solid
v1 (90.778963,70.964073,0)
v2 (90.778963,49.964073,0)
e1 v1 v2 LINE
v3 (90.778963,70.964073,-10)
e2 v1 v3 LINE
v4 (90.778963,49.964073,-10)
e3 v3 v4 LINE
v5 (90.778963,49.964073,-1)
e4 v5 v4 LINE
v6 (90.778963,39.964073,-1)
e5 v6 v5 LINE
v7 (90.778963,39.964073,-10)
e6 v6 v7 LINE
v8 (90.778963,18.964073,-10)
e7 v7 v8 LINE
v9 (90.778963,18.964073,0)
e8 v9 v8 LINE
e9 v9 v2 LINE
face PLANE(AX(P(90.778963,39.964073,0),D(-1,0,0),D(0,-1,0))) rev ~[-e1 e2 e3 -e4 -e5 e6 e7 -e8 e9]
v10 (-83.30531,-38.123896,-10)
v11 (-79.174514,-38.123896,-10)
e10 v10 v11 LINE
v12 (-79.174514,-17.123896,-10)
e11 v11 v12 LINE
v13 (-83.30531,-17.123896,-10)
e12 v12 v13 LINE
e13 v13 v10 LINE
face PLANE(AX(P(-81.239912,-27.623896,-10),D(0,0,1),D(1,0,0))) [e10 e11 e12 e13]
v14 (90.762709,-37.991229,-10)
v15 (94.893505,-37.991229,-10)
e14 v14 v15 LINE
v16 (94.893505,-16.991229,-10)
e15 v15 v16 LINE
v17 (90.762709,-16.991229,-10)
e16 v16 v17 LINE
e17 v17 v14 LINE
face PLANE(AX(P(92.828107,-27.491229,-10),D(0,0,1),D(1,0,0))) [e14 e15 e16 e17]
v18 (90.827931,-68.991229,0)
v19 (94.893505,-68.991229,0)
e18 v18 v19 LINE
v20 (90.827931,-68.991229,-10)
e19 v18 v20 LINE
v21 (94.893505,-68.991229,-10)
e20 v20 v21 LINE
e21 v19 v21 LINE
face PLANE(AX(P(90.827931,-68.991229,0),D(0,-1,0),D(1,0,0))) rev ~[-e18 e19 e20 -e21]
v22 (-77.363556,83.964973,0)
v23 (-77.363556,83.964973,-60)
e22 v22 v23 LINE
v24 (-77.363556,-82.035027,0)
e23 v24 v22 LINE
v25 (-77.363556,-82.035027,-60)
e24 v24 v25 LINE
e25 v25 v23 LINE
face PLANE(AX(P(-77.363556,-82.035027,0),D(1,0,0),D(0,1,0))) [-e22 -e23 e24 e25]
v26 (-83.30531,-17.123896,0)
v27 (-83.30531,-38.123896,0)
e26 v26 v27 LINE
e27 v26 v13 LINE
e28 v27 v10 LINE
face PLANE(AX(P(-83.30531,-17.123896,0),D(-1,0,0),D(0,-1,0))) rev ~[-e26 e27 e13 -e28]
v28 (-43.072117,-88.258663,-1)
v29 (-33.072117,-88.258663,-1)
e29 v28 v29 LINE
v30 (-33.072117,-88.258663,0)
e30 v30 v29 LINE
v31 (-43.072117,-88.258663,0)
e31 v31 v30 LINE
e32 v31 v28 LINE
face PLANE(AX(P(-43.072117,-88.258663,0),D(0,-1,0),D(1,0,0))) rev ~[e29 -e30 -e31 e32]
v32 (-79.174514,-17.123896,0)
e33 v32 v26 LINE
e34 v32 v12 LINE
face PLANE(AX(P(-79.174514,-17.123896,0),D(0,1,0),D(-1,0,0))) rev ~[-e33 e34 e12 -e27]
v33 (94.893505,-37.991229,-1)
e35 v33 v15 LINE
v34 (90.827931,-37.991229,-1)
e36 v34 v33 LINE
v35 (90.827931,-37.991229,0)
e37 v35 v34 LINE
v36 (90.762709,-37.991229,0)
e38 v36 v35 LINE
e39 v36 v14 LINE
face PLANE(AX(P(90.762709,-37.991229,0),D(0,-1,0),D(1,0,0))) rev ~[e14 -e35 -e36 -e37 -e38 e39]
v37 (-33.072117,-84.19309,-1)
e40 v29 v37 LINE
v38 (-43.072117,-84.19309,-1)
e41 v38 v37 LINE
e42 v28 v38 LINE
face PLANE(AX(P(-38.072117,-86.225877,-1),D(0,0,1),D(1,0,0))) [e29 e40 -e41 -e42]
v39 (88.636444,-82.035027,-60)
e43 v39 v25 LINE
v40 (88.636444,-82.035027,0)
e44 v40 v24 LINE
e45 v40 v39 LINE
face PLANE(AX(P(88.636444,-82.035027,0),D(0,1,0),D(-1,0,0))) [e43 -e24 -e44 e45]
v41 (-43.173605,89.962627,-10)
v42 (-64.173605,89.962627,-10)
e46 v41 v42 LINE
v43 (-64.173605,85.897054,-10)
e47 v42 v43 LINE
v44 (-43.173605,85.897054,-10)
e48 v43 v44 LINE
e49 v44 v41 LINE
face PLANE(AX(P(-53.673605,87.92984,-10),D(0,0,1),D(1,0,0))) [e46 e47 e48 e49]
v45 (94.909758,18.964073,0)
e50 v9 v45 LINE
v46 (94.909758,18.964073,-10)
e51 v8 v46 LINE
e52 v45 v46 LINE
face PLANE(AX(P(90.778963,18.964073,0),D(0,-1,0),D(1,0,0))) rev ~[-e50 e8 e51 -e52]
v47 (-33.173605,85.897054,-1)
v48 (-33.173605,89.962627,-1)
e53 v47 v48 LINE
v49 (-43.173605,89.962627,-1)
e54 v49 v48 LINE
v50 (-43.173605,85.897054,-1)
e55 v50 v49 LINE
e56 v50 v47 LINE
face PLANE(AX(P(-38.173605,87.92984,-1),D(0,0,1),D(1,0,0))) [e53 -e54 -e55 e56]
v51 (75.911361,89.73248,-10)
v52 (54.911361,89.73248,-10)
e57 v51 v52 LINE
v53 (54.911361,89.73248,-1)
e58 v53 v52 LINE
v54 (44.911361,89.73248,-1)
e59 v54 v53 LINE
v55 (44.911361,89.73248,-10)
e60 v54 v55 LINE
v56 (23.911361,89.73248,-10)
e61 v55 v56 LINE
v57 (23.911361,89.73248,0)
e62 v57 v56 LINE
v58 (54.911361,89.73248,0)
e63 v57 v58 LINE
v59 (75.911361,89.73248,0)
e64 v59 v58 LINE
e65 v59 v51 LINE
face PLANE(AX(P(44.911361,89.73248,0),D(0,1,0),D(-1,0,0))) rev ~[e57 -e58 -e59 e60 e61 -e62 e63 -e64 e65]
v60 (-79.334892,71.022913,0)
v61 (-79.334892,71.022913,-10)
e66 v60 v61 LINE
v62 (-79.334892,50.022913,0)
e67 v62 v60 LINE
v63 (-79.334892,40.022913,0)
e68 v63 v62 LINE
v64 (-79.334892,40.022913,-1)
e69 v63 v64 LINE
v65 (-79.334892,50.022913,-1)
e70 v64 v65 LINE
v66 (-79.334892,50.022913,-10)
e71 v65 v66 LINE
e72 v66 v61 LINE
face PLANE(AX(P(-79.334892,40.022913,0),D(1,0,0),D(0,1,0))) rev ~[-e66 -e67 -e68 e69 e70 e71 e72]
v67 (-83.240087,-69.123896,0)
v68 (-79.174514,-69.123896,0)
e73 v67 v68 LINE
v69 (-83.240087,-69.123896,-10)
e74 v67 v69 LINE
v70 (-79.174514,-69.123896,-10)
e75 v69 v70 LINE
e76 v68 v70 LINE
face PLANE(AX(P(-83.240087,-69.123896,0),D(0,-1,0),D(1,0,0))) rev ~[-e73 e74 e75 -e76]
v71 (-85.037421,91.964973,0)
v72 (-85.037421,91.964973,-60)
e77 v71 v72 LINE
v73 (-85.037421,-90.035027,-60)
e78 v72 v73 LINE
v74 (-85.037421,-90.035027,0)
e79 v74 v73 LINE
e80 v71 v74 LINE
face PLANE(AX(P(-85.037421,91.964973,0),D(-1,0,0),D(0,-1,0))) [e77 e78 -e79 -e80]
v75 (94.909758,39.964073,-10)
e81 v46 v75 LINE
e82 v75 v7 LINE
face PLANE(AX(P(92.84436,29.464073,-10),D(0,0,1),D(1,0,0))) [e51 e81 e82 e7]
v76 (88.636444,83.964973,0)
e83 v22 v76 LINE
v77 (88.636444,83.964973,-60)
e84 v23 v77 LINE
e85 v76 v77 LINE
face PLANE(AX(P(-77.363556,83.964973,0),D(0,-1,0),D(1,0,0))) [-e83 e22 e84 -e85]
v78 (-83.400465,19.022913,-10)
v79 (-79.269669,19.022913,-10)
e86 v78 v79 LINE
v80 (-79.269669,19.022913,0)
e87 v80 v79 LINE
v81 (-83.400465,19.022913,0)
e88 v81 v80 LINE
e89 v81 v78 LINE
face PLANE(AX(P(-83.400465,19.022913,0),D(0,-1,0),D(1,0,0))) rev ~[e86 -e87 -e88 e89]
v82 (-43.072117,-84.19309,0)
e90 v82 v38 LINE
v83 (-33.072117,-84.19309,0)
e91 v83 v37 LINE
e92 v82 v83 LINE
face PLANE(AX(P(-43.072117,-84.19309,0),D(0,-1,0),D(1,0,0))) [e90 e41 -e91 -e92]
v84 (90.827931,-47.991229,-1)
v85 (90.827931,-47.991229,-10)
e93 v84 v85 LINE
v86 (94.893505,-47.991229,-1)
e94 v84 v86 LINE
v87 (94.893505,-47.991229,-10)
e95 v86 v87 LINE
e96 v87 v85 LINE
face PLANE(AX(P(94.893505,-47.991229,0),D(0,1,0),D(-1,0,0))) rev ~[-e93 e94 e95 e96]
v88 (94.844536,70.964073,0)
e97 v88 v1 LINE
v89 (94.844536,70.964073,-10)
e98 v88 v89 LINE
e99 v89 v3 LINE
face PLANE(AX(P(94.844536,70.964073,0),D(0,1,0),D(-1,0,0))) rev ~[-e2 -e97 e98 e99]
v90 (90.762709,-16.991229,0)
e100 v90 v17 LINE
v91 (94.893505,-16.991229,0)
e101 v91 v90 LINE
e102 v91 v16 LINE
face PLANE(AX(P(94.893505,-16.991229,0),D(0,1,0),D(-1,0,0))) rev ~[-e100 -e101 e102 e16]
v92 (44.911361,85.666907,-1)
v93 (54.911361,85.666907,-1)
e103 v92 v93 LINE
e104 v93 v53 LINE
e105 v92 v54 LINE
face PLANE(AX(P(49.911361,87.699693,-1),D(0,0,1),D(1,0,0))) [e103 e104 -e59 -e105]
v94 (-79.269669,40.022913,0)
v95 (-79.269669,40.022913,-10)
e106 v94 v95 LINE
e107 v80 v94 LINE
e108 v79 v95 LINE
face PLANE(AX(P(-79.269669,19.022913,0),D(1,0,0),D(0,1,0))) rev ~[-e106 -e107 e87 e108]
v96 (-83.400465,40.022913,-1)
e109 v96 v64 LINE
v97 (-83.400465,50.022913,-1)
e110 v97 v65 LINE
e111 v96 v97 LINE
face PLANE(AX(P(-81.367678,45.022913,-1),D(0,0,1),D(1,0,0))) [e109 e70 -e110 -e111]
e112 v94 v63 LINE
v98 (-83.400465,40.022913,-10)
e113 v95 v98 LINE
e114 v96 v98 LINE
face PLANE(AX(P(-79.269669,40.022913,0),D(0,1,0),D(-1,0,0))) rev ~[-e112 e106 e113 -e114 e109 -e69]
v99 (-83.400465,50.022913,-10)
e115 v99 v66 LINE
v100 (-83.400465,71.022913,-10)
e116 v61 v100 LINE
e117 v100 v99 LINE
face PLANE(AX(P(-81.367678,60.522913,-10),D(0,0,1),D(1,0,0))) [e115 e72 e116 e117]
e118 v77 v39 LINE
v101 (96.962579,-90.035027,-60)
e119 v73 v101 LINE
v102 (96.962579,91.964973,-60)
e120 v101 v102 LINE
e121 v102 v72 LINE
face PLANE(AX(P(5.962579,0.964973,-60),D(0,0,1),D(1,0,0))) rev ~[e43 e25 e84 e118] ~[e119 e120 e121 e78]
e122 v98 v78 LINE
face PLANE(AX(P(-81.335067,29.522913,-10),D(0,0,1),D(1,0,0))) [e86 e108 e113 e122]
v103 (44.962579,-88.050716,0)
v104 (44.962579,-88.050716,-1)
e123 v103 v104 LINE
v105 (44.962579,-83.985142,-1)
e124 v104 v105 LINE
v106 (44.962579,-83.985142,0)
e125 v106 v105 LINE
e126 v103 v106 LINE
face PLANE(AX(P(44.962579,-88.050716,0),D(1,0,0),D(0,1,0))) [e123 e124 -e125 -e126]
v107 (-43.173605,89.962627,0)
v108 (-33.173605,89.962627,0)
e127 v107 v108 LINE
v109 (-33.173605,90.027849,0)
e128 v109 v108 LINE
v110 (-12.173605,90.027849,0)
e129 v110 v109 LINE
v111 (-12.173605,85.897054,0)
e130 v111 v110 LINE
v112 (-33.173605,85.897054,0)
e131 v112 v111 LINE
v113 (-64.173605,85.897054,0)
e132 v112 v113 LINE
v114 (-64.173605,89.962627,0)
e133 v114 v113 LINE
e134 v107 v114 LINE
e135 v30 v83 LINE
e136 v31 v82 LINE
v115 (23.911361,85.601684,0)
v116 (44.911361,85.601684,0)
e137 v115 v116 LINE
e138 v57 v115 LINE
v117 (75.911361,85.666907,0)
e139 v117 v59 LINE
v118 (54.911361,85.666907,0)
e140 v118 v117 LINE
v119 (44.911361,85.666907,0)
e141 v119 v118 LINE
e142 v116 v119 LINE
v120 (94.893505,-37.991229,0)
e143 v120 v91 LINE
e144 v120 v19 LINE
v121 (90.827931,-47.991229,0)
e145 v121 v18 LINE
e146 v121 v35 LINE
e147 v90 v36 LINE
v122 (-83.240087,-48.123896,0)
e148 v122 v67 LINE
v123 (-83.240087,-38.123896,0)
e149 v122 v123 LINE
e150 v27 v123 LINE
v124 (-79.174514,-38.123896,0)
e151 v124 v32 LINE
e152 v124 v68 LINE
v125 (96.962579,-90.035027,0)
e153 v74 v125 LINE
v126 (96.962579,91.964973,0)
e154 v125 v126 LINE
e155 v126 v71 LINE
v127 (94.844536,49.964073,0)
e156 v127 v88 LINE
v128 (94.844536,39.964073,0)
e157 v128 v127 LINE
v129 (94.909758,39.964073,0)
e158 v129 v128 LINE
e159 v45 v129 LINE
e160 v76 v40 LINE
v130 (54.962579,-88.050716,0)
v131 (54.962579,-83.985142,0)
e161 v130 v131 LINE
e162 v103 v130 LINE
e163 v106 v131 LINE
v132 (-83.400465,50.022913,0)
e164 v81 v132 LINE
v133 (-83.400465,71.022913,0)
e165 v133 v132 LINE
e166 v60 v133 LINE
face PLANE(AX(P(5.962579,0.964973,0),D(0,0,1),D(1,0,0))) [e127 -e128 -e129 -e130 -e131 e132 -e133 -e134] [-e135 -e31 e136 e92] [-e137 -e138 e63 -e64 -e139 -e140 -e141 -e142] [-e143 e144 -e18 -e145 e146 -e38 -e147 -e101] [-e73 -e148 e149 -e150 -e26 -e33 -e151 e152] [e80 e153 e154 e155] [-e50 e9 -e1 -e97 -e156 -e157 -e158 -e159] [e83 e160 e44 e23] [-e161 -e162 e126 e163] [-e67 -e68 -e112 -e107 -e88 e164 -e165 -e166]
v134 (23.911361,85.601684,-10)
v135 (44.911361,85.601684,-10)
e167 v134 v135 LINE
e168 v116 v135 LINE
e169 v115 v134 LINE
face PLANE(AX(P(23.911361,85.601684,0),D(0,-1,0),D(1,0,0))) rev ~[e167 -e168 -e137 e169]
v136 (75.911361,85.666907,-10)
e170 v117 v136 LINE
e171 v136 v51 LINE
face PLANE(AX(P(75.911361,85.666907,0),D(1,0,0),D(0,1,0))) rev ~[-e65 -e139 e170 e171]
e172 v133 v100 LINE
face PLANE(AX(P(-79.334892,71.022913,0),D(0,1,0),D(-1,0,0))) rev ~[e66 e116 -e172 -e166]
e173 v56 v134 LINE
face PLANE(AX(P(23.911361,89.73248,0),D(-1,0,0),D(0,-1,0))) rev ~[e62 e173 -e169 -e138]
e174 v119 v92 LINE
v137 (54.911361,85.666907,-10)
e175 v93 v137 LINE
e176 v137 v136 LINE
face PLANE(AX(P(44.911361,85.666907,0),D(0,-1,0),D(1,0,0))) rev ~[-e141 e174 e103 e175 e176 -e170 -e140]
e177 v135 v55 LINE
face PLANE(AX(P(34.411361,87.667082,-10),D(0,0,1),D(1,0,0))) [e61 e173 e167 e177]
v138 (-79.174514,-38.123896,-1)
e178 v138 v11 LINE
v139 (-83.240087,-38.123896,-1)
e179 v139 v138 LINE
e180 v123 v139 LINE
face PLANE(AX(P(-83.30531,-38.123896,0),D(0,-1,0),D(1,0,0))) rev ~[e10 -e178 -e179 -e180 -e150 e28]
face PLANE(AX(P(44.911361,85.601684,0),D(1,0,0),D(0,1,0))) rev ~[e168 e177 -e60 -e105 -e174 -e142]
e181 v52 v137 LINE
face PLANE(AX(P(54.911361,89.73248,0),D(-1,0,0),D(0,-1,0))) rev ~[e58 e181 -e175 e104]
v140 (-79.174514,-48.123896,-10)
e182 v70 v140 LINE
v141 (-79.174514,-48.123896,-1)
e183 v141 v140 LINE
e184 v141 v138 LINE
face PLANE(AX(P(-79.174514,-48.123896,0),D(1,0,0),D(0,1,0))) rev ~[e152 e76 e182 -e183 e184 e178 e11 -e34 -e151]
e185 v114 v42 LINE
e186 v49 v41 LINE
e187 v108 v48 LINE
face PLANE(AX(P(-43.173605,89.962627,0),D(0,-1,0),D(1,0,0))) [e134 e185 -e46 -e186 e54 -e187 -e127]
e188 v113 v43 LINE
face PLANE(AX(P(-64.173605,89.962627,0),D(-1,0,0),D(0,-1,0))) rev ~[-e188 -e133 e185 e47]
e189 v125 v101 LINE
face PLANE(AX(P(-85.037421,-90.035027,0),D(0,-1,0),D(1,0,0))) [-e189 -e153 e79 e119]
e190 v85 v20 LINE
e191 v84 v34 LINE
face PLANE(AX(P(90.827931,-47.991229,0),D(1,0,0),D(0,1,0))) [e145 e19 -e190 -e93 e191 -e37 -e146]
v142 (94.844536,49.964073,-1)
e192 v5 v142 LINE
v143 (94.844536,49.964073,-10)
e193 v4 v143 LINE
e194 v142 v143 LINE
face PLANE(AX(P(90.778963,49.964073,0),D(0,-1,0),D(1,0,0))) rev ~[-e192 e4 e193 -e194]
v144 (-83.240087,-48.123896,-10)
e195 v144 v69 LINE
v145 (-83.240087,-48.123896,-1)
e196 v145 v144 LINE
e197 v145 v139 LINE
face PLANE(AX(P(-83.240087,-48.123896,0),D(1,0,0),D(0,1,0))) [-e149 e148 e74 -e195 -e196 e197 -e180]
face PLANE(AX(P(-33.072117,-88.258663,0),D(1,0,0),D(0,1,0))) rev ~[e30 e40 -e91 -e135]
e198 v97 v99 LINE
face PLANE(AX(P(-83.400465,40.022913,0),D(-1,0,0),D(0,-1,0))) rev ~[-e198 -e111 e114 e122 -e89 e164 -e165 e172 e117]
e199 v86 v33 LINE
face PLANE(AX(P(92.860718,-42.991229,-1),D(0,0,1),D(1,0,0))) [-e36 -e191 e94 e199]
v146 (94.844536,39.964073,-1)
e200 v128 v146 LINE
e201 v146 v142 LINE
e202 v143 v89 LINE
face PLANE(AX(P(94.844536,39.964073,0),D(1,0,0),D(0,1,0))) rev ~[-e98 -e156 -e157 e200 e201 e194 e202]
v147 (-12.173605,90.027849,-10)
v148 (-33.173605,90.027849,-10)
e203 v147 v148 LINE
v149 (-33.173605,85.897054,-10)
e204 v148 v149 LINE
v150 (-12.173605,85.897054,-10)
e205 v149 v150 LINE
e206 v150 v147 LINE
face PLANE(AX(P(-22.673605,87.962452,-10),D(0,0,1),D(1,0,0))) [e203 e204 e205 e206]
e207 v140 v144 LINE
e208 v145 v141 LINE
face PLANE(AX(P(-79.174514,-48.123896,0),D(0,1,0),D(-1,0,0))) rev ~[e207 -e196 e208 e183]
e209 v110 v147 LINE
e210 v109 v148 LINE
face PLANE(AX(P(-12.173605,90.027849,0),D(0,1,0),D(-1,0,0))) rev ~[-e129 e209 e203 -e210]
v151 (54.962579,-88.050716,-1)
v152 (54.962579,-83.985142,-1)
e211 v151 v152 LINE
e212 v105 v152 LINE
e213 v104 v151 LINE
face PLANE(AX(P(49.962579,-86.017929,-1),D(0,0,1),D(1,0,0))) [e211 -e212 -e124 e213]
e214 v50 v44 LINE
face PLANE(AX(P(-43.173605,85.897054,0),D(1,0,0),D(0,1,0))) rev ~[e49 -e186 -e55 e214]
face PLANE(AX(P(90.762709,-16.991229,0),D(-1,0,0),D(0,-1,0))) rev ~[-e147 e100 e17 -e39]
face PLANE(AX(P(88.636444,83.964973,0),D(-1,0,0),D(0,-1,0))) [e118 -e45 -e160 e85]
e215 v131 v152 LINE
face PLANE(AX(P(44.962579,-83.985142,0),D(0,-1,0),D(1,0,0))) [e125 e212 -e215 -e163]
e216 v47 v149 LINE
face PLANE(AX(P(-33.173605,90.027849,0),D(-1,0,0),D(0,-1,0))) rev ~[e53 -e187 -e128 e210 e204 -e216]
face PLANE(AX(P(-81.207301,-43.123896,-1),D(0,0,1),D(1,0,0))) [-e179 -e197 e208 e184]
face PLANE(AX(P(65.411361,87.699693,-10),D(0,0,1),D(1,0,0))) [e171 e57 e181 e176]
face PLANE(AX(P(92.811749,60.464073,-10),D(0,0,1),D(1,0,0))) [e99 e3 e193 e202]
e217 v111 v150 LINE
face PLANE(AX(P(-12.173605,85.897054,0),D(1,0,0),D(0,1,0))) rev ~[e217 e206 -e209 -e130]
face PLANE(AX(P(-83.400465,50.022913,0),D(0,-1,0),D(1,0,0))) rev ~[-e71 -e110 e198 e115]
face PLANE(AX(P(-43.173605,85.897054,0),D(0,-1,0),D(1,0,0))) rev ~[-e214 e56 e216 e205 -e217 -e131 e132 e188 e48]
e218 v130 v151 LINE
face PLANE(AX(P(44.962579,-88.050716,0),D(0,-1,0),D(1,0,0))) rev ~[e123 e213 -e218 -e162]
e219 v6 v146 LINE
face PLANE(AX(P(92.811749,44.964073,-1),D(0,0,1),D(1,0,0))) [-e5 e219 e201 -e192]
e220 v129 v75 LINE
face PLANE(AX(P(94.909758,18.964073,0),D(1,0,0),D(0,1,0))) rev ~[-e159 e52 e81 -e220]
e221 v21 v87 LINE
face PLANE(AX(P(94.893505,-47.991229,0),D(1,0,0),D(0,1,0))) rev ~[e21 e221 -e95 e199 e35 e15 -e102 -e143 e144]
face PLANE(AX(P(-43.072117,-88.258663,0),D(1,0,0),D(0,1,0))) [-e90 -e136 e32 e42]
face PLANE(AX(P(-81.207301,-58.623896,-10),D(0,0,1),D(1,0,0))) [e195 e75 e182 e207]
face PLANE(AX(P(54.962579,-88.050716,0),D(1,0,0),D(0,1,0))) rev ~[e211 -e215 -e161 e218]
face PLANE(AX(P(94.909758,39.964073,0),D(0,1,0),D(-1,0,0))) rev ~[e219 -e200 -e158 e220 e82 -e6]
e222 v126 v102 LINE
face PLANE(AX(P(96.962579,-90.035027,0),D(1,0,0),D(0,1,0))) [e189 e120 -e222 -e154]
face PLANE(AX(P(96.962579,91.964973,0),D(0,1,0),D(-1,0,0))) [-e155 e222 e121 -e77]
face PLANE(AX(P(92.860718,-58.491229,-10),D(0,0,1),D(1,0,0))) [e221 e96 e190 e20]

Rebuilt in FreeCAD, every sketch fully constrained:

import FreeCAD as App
import Part
import Sketcher

V = App.Vector
Q = App.Units.Quantity

doc = App.newDocument("Part")
body = doc.addObject("PartDesign::Body", "Body")

sketch1 = doc.addObject("Sketcher::SketchObject", "Sketch")
body.addObject(sketch1)
sketch1.AttachmentSupport = (doc.XY_Plane, [""])
sketch1.MapMode = "FlatFace"
sketch1.addGeometry([
    Part.LineSegment(V(-85.037421, 91.964973, 0), V(-85.037421, -90.035027, 0)),
    Part.LineSegment(V(-85.037421, -90.035027, 0), V(96.962579, -90.035027, 0)),
    Part.LineSegment(V(96.962579, -90.035027, 0), V(96.962579, 91.964973, 0)),
    Part.LineSegment(V(96.962579, 91.964973, 0), V(-85.037421, 91.964973, 0)),
    Part.LineSegment(V(-77.363556, -82.035027, 0), V(-77.363556, 83.964973, 0)),
    Part.LineSegment(V(-77.363556, 83.964973, 0), V(88.636444, 83.964973, 0)),
    Part.LineSegment(V(88.636444, 83.964973, 0), V(88.636444, -82.035027, 0)),
    Part.LineSegment(V(88.636444, -82.035027, 0), V(-77.363556, -82.035027, 0)),
], False)
sketch1.addConstraint([
    Sketcher.Constraint("Coincident", 0, 2, 1, 1),
    Sketcher.Constraint("Coincident", 1, 2, 2, 1),
    Sketcher.Constraint("Coincident", 2, 2, 3, 1),
    Sketcher.Constraint("Coincident", 3, 2, 0, 1),
    Sketcher.Constraint("Coincident", 4, 2, 5, 1),
    Sketcher.Constraint("Coincident", 5, 2, 6, 1),
    Sketcher.Constraint("Coincident", 6, 2, 7, 1),
    Sketcher.Constraint("Coincident", 7, 2, 4, 1),
    Sketcher.Constraint("Vertical", 0),
    Sketcher.Constraint("Horizontal", 1),
    Sketcher.Constraint("Vertical", 2),
    Sketcher.Constraint("Horizontal", 3),
    Sketcher.Constraint("Vertical", 4),
    Sketcher.Constraint("Horizontal", 5),
    Sketcher.Constraint("Vertical", 6),
    Sketcher.Constraint("Horizontal", 7),
    Sketcher.Constraint("Equal", 3, 0),
    Sketcher.Constraint("Equal", 7, 4),
    Sketcher.Constraint("DistanceX", 1, 1, 1, 2, Q("182 mm")),
    Sketcher.Constraint("DistanceX", 5, 1, 5, 2, Q("166 mm")),
    Sketcher.Constraint("DistanceY", 4, 2, 3, 2, Q("8 mm")),
    Sketcher.Constraint("DistanceX", 0, 2, -1, 1, Q("85.037421 mm")),
    Sketcher.Constraint("DistanceY", 0, 2, -1, 1, Q("90.035027 mm")),
    Sketcher.Constraint("DistanceX", 4, 2, -1, 1, Q("77.363556 mm")),
])
pad1 = doc.addObject("PartDesign::Pad", "Pad")
body.addObject(pad1)
pad1.Profile = sketch1
pad1.Length = 60
pad1.Reversed = True

sketch2 = doc.addObject("Sketcher::SketchObject", "Sketch001")
body.addObject(sketch2)
sketch2.AttachmentSupport = (doc.XY_Plane, [""])
sketch2.MapMode = "FlatFace"
sketch2.addGeometry([
    Part.LineSegment(V(-83.400465, 50.022913, 0), V(-79.334892, 50.022913, 0)),
    Part.LineSegment(V(-79.334892, 50.022913, 0), V(-79.334892, 71.022913, 0)),
    Part.LineSegment(V(-79.334892, 71.022913, 0), V(-83.400465, 71.022913, 0)),
    Part.LineSegment(V(-83.400465, 71.022913, 0), V(-83.400465, 50.022913, 0)),
    Part.LineSegment(V(-83.400465, 40.022913, 0), V(-83.400465, 19.022913, 0)),
    Part.LineSegment(V(-83.400465, 19.022913, 0), V(-79.269669, 19.022913, 0)),
    Part.LineSegment(V(-79.269669, 19.022913, 0), V(-79.269669, 40.022913, 0)),
    Part.LineSegment(V(-79.269669, 40.022913, 0), V(-83.400465, 40.022913, 0)),
    Part.LineSegment(V(90.778963, 49.964073, 0), V(94.844536, 49.964073, 0)),
    Part.LineSegment(V(94.844536, 49.964073, 0), V(94.844536, 70.964073, 0)),
    Part.LineSegment(V(94.844536, 70.964073, 0), V(90.778963, 70.964073, 0)),
    Part.LineSegment(V(90.778963, 70.964073, 0), V(90.778963, 49.964073, 0)),
    Part.LineSegment(V(90.778963, 39.964073, 0), V(90.778963, 18.964073, 0)),
    Part.LineSegment(V(90.778963, 18.964073, 0), V(94.909758, 18.964073, 0)),
    Part.LineSegment(V(94.909758, 18.964073, 0), V(94.909758, 39.964073, 0)),
    Part.LineSegment(V(94.909758, 39.964073, 0), V(90.778963, 39.964073, 0)),
    Part.LineSegment(V(-79.174514, -38.123896, 0), V(-79.174514, -17.123896, 0)),
    Part.LineSegment(V(-79.174514, -17.123896, 0), V(-83.30531, -17.123896, 0)),
    Part.LineSegment(V(-83.30531, -17.123896, 0), V(-83.30531, -38.123896, 0)),
    Part.LineSegment(V(-83.30531, -38.123896, 0), V(-79.174514, -38.123896, 0)),
    Part.LineSegment(V(-79.174514, -48.123896, 0), V(-83.240087, -48.123896, 0)),
    Part.LineSegment(V(-83.240087, -48.123896, 0), V(-83.240087, -69.123896, 0)),
    Part.LineSegment(V(-83.240087, -69.123896, 0), V(-79.174514, -69.123896, 0)),
    Part.LineSegment(V(-79.174514, -69.123896, 0), V(-79.174514, -48.123896, 0)),
    Part.LineSegment(V(94.893505, -47.991229, 0), V(90.827931, -47.991229, 0)),
    Part.LineSegment(V(90.827931, -47.991229, 0), V(90.827931, -68.991229, 0)),
    Part.LineSegment(V(90.827931, -68.991229, 0), V(94.893505, -68.991229, 0)),
    Part.LineSegment(V(94.893505, -68.991229, 0), V(94.893505, -47.991229, 0)),
    Part.LineSegment(V(94.893505, -37.991229, 0), V(94.893505, -16.991229, 0)),
    Part.LineSegment(V(94.893505, -16.991229, 0), V(90.762709, -16.991229, 0)),
    Part.LineSegment(V(90.762709, -16.991229, 0), V(90.762709, -37.991229, 0)),
    Part.LineSegment(V(90.762709, -37.991229, 0), V(94.893505, -37.991229, 0)),
    Part.LineSegment(V(54.911361, 89.73248, 0), V(54.911361, 85.666907, 0)),
    Part.LineSegment(V(54.911361, 85.666907, 0), V(75.911361, 85.666907, 0)),
    Part.LineSegment(V(75.911361, 85.666907, 0), V(75.911361, 89.73248, 0)),
    Part.LineSegment(V(75.911361, 89.73248, 0), V(54.911361, 89.73248, 0)),
    Part.LineSegment(V(44.911361, 89.73248, 0), V(23.911361, 89.73248, 0)),
    Part.LineSegment(V(23.911361, 89.73248, 0), V(23.911361, 85.601684, 0)),
    Part.LineSegment(V(23.911361, 85.601684, 0), V(44.911361, 85.601684, 0)),
    Part.LineSegment(V(44.911361, 85.601684, 0), V(44.911361, 89.73248, 0)),
    Part.LineSegment(V(-33.173605, 85.897054, 0), V(-12.173605, 85.897054, 0)),
    Part.LineSegment(V(-12.173605, 85.897054, 0), V(-12.173605, 90.027849, 0)),
    Part.LineSegment(V(-12.173605, 90.027849, 0), V(-33.173605, 90.027849, 0)),
    Part.LineSegment(V(-33.173605, 90.027849, 0), V(-33.173605, 85.897054, 0)),
    Part.LineSegment(V(-43.173605, 85.897054, 0), V(-43.173605, 89.962627, 0)),
    Part.LineSegment(V(-43.173605, 89.962627, 0), V(-64.173605, 89.962627, 0)),
    Part.LineSegment(V(-64.173605, 89.962627, 0), V(-64.173605, 85.897054, 0)),
    Part.LineSegment(V(-64.173605, 85.897054, 0), V(-43.173605, 85.897054, 0)),
], False)
sketch2.addConstraint([
    Sketcher.Constraint("Coincident", 0, 2, 1, 1),
    Sketcher.Constraint("Coincident", 1, 2, 2, 1),
    Sketcher.Constraint("Coincident", 2, 2, 3, 1),
    Sketcher.Constraint("Coincident", 3, 2, 0, 1),
    Sketcher.Constraint("Coincident", 4, 2, 5, 1),
    Sketcher.Constraint("Coincident", 5, 2, 6, 1),
    Sketcher.Constraint("Coincident", 6, 2, 7, 1),
    Sketcher.Constraint("Coincident", 7, 2, 4, 1),
    Sketcher.Constraint("Coincident", 8, 2, 9, 1),
    Sketcher.Constraint("Coincident", 9, 2, 10, 1),
    Sketcher.Constraint("Coincident", 10, 2, 11, 1),
    Sketcher.Constraint("Coincident", 11, 2, 8, 1),
    Sketcher.Constraint("Coincident", 12, 2, 13, 1),
    Sketcher.Constraint("Coincident", 13, 2, 14, 1),
    Sketcher.Constraint("Coincident", 14, 2, 15, 1),
    Sketcher.Constraint("Coincident", 15, 2, 12, 1),
    Sketcher.Constraint("Coincident", 16, 2, 17, 1),
    Sketcher.Constraint("Coincident", 17, 2, 18, 1),
    Sketcher.Constraint("Coincident", 18, 2, 19, 1),
    Sketcher.Constraint("Coincident", 19, 2, 16, 1),
    Sketcher.Constraint("Coincident", 20, 2, 21, 1),
    Sketcher.Constraint("Coincident", 21, 2, 22, 1),
    Sketcher.Constraint("Coincident", 22, 2, 23, 1),
    Sketcher.Constraint("Coincident", 23, 2, 20, 1),
    Sketcher.Constraint("Coincident", 24, 2, 25, 1),
    Sketcher.Constraint("Coincident", 25, 2, 26, 1),
    Sketcher.Constraint("Coincident", 26, 2, 27, 1),
    Sketcher.Constraint("Coincident", 27, 2, 24, 1),
    Sketcher.Constraint("Coincident", 28, 2, 29, 1),
    Sketcher.Constraint("Coincident", 29, 2, 30, 1),
    Sketcher.Constraint("Coincident", 30, 2, 31, 1),
    Sketcher.Constraint("Coincident", 31, 2, 28, 1),
    Sketcher.Constraint("Coincident", 32, 2, 33, 1),
    Sketcher.Constraint("Coincident", 33, 2, 34, 1),
    Sketcher.Constraint("Coincident", 34, 2, 35, 1),
    Sketcher.Constraint("Coincident", 35, 2, 32, 1),
    Sketcher.Constraint("Coincident", 36, 2, 37, 1),
    Sketcher.Constraint("Coincident", 37, 2, 38, 1),
    Sketcher.Constraint("Coincident", 38, 2, 39, 1),
    Sketcher.Constraint("Coincident", 39, 2, 36, 1),
    Sketcher.Constraint("Coincident", 40, 2, 41, 1),
    Sketcher.Constraint("Coincident", 41, 2, 42, 1),
    Sketcher.Constraint("Coincident", 42, 2, 43, 1),
    Sketcher.Constraint("Coincident", 43, 2, 40, 1),
    Sketcher.Constraint("Coincident", 44, 2, 45, 1),
    Sketcher.Constraint("Coincident", 45, 2, 46, 1),
    Sketcher.Constraint("Coincident", 46, 2, 47, 1),
    Sketcher.Constraint("Coincident", 47, 2, 44, 1),
    Sketcher.Constraint("Horizontal", 0),
    Sketcher.Constraint("Vertical", 1),
    Sketcher.Constraint("Horizontal", 2),
    Sketcher.Constraint("Vertical", 3),
    Sketcher.Constraint("Vertical", 4),
    Sketcher.Constraint("Horizontal", 5),
    Sketcher.Constraint("Vertical", 6),
    Sketcher.Constraint("Horizontal", 7),
    Sketcher.Constraint("Horizontal", 8),
    Sketcher.Constraint("Vertical", 9),
    Sketcher.Constraint("Horizontal", 10),
    Sketcher.Constraint("Vertical", 11),
    Sketcher.Constraint("Vertical", 12),
    Sketcher.Constraint("Horizontal", 13),
    Sketcher.Constraint("Vertical", 14),
    Sketcher.Constraint("Horizontal", 15),
    Sketcher.Constraint("Vertical", 16),
    Sketcher.Constraint("Horizontal", 17),
    Sketcher.Constraint("Vertical", 18),
    Sketcher.Constraint("Horizontal", 19),
    Sketcher.Constraint("Horizontal", 20),
    Sketcher.Constraint("Vertical", 21),
    Sketcher.Constraint("Horizontal", 22),
    Sketcher.Constraint("Vertical", 23),
    Sketcher.Constraint("Horizontal", 24),
    Sketcher.Constraint("Vertical", 25),
    Sketcher.Constraint("Horizontal", 26),
    Sketcher.Constraint("Vertical", 27),
    Sketcher.Constraint("Vertical", 28),
    Sketcher.Constraint("Horizontal", 29),
    Sketcher.Constraint("Vertical", 30),
    Sketcher.Constraint("Horizontal", 31),
    Sketcher.Constraint("Vertical", 32),
    Sketcher.Constraint("Horizontal", 33),
    Sketcher.Constraint("Vertical", 34),
    Sketcher.Constraint("Horizontal", 35),
    Sketcher.Constraint("Horizontal", 36),
    Sketcher.Constraint("Vertical", 37),
    Sketcher.Constraint("Horizontal", 38),
    Sketcher.Constraint("Vertical", 39),
    Sketcher.Constraint("Horizontal", 40),
    Sketcher.Constraint("Vertical", 41),
    Sketcher.Constraint("Horizontal", 42),
    Sketcher.Constraint("Vertical", 43),
    Sketcher.Constraint("Vertical", 44),
    Sketcher.Constraint("Horizontal", 45),
    Sketcher.Constraint("Vertical", 46),
    Sketcher.Constraint("Horizontal", 47),
    Sketcher.Constraint("Horizontal", 35, 2, 36, 2),
    Sketcher.Constraint("Horizontal", 43, 2, 46, 2),
    Sketcher.Constraint("Vertical", 3, 2, 4, 2),
    Sketcher.Constraint("Vertical", 11, 2, 12, 2),
    Sketcher.Constraint("Vertical", 19, 2, 22, 2),
    Sketcher.Constraint("Vertical", 27, 2, 28, 2),
    Sketcher.Constraint("Equal", 2, 8),
    Sketcher.Constraint("Equal", 7, 13),
    Sketcher.Constraint("Equal", 15, 17),
    Sketcher.Constraint("Equal", 10, 20),
    Sketcher.Constraint("Equal", 22, 24),
    Sketcher.Constraint("Equal", 19, 29),
    Sketcher.Constraint("Equal", 35, 36),
    Sketcher.Constraint("Equal", 38, 40),
    Sketcher.Constraint("Equal", 42, 45),
    Sketcher.Constraint("Equal", 47, 1),
    Sketcher.Constraint("Equal", 3, 4),
    Sketcher.Constraint("Equal", 6, 9),
    Sketcher.Constraint("Equal", 11, 12),
    Sketcher.Constraint("Equal", 14, 16),
    Sketcher.Constraint("Equal", 18, 21),
    Sketcher.Constraint("Equal", 23, 25),
    Sketcher.Constraint("Equal", 27, 28),
    Sketcher.Constraint("Equal", 26, 32),
    Sketcher.Constraint("Equal", 31, 37),
    Sketcher.Constraint("Equal", 39, 41),
    Sketcher.Constraint("Equal", 34, 44),
    Sketcher.Constraint("DistanceX", 33, 1, 33, 2, Q("21 mm")),
    Sketcher.Constraint("DistanceY", 4, 2, 3, 2, Q("31 mm")),
    Sketcher.Constraint("DistanceY", 12, 2, 11, 2, Q("31 mm")),
    Sketcher.Constraint("DistanceY", 20, 2, 18, 2, Q("10 mm")),
    Sketcher.Constraint("DistanceY", 27, 2, 28, 2, Q("31 mm")),
    Sketcher.Constraint("DistanceX", 36, 2, 35, 2, Q("31 mm")),
    Sketcher.Constraint("DistanceX", 44, 2, 42, 2, Q("10 mm")),
    Sketcher.Constraint("DistanceX", 3, 2, 8, 2, Q("178.245001 mm")),
    Sketcher.Constraint("DistanceX", 32, 2, 10, 2, Q("35.867601 mm")),
    Sketcher.Constraint("DistanceX", 0, 1, 0, 2, Q("4.065573 mm")),
    Sketcher.Constraint("DistanceX", 5, 1, 5, 2, Q("4.130796 mm")),
    Sketcher.Constraint("DistanceX", 0, 2, -1, 1, Q("79.334892 mm")),
    Sketcher.Constraint("DistanceX", 17, 2, -1, 1, Q("83.30531 mm")),
    Sketcher.Constraint("DistanceX", -1, 1, 24, 2, Q("90.827931 mm")),
    Sketcher.Constraint("DistanceY", 24, 2, -1, 1, Q("47.991229 mm")),
    Sketcher.Constraint("DistanceY", -1, 1, 34, 2, Q("89.73248 mm")),
    Sketcher.Constraint("DistanceY", -1, 1, 41, 2, Q("90.027849 mm")),
    Sketcher.Constraint("DistanceY", 8, 2, 0, 2, Q("0.058839 mm")),
    Sketcher.Constraint("DistanceY", 16, 2, 5, 2, Q("36.146809 mm")),
    Sketcher.Constraint("DistanceX", 2, 2, 42, 2, Q("50.22686 mm")),
    Sketcher.Constraint("DistanceY", 1, 2, 43, 2, Q("14.874141 mm")),
])
pocket1 = doc.addObject("PartDesign::Pocket", "Pocket")
body.addObject(pocket1)
pocket1.Profile = sketch2
pocket1.Length = 10

sketch3 = doc.addObject("Sketcher::SketchObject", "Sketch002")
body.addObject(sketch3)
sketch3.AttachmentSupport = (doc.XY_Plane, [""])
sketch3.MapMode = "FlatFace"
sketch3.addGeometry([
    Part.LineSegment(V(-83.400465, 50.022913, 0), V(-83.400465, 40.022913, 0)),
    Part.LineSegment(V(-83.400465, 40.022913, 0), V(-79.334892, 40.022913, 0)),
    Part.LineSegment(V(-79.334892, 40.022913, 0), V(-79.334892, 50.022913, 0)),
    Part.LineSegment(V(-79.334892, 50.022913, 0), V(-83.400465, 50.022913, 0)),
    Part.LineSegment(V(-83.240087, -38.123896, 0), V(-83.240087, -48.123896, 0)),
    Part.LineSegment(V(-83.240087, -48.123896, 0), V(-79.174514, -48.123896, 0)),
    Part.LineSegment(V(-79.174514, -48.123896, 0), V(-79.174514, -38.123896, 0)),
    Part.LineSegment(V(-79.174514, -38.123896, 0), V(-83.240087, -38.123896, 0)),
    Part.LineSegment(V(90.827931, -37.991229, 0), V(90.827931, -47.991229, 0)),
    Part.LineSegment(V(90.827931, -47.991229, 0), V(94.893505, -47.991229, 0)),
    Part.LineSegment(V(94.893505, -47.991229, 0), V(94.893505, -37.991229, 0)),
    Part.LineSegment(V(94.893505, -37.991229, 0), V(90.827931, -37.991229, 0)),
    Part.LineSegment(V(90.778963, 49.964073, 0), V(90.778963, 39.964073, 0)),
    Part.LineSegment(V(90.778963, 39.964073, 0), V(94.844536, 39.964073, 0)),
    Part.LineSegment(V(94.844536, 39.964073, 0), V(94.844536, 49.964073, 0)),
    Part.LineSegment(V(94.844536, 49.964073, 0), V(90.778963, 49.964073, 0)),
    Part.LineSegment(V(44.911361, 89.73248, 0), V(44.911361, 85.666907, 0)),
    Part.LineSegment(V(44.911361, 85.666907, 0), V(54.911361, 85.666907, 0)),
    Part.LineSegment(V(54.911361, 85.666907, 0), V(54.911361, 89.73248, 0)),
    Part.LineSegment(V(54.911361, 89.73248, 0), V(44.911361, 89.73248, 0)),
    Part.LineSegment(V(-43.173605, 89.962627, 0), V(-43.173605, 85.897054, 0)),
    Part.LineSegment(V(-43.173605, 85.897054, 0), V(-33.173605, 85.897054, 0)),
    Part.LineSegment(V(-33.173605, 85.897054, 0), V(-33.173605, 89.962627, 0)),
    Part.LineSegment(V(-33.173605, 89.962627, 0), V(-43.173605, 89.962627, 0)),
    Part.LineSegment(V(-43.072117, -84.19309, 0), V(-43.072117, -88.258663, 0)),
    Part.LineSegment(V(-43.072117, -88.258663, 0), V(-33.072117, -88.258663, 0)),
    Part.LineSegment(V(-33.072117, -88.258663, 0), V(-33.072117, -84.19309, 0)),
    Part.LineSegment(V(-33.072117, -84.19309, 0), V(-43.072117, -84.19309, 0)),
    Part.LineSegment(V(44.962579, -83.985142, 0), V(44.962579, -88.050716, 0)),
    Part.LineSegment(V(44.962579, -88.050716, 0), V(54.962579, -88.050716, 0)),
    Part.LineSegment(V(54.962579, -88.050716, 0), V(54.962579, -83.985142, 0)),
    Part.LineSegment(V(54.962579, -83.985142, 0), V(44.962579, -83.985142, 0)),
], False)
sketch3.addConstraint([
    Sketcher.Constraint("Coincident", 0, 2, 1, 1),
    Sketcher.Constraint("Coincident", 1, 2, 2, 1),
    Sketcher.Constraint("Coincident", 2, 2, 3, 1),
    Sketcher.Constraint("Coincident", 3, 2, 0, 1),
    Sketcher.Constraint("Coincident", 4, 2, 5, 1),
    Sketcher.Constraint("Coincident", 5, 2, 6, 1),
    Sketcher.Constraint("Coincident", 6, 2, 7, 1),
    Sketcher.Constraint("Coincident", 7, 2, 4, 1),
    Sketcher.Constraint("Coincident", 8, 2, 9, 1),
    Sketcher.Constraint("Coincident", 9, 2, 10, 1),
    Sketcher.Constraint("Coincident", 10, 2, 11, 1),
    Sketcher.Constraint("Coincident", 11, 2, 8, 1),
    Sketcher.Constraint("Coincident", 12, 2, 13, 1),
    Sketcher.Constraint("Coincident", 13, 2, 14, 1),
    Sketcher.Constraint("Coincident", 14, 2, 15, 1),
    Sketcher.Constraint("Coincident", 15, 2, 12, 1),
    Sketcher.Constraint("Coincident", 16, 2, 17, 1),
    Sketcher.Constraint("Coincident", 17, 2, 18, 1),
    Sketcher.Constraint("Coincident", 18, 2, 19, 1),
    Sketcher.Constraint("Coincident", 19, 2, 16, 1),
    Sketcher.Constraint("Coincident", 20, 2, 21, 1),
    Sketcher.Constraint("Coincident", 21, 2, 22, 1),
    Sketcher.Constraint("Coincident", 22, 2, 23, 1),
    Sketcher.Constraint("Coincident", 23, 2, 20, 1),
    Sketcher.Constraint("Coincident", 24, 2, 25, 1),
    Sketcher.Constraint("Coincident", 25, 2, 26, 1),
    Sketcher.Constraint("Coincident", 26, 2, 27, 1),
    Sketcher.Constraint("Coincident", 27, 2, 24, 1),
    Sketcher.Constraint("Coincident", 28, 2, 29, 1),
    Sketcher.Constraint("Coincident", 29, 2, 30, 1),
    Sketcher.Constraint("Coincident", 30, 2, 31, 1),
    Sketcher.Constraint("Coincident", 31, 2, 28, 1),
    Sketcher.Constraint("Vertical", 0),
    Sketcher.Constraint("Horizontal", 1),
    Sketcher.Constraint("Vertical", 2),
    Sketcher.Constraint("Horizontal", 3),
    Sketcher.Constraint("Vertical", 4),
    Sketcher.Constraint("Horizontal", 5),
    Sketcher.Constraint("Vertical", 6),
    Sketcher.Constraint("Horizontal", 7),
    Sketcher.Constraint("Vertical", 8),
    Sketcher.Constraint("Horizontal", 9),
    Sketcher.Constraint("Vertical", 10),
    Sketcher.Constraint("Horizontal", 11),
    Sketcher.Constraint("Vertical", 12),
    Sketcher.Constraint("Horizontal", 13),
    Sketcher.Constraint("Vertical", 14),
    Sketcher.Constraint("Horizontal", 15),
    Sketcher.Constraint("Vertical", 16),
    Sketcher.Constraint("Horizontal", 17),
    Sketcher.Constraint("Vertical", 18),
    Sketcher.Constraint("Horizontal", 19),
    Sketcher.Constraint("Vertical", 20),
    Sketcher.Constraint("Horizontal", 21),
    Sketcher.Constraint("Vertical", 22),
    Sketcher.Constraint("Horizontal", 23),
    Sketcher.Constraint("Vertical", 24),
    Sketcher.Constraint("Horizontal", 25),
    Sketcher.Constraint("Vertical", 26),
    Sketcher.Constraint("Horizontal", 27),
    Sketcher.Constraint("Vertical", 28),
    Sketcher.Constraint("Horizontal", 29),
    Sketcher.Constraint("Vertical", 30),
    Sketcher.Constraint("Horizontal", 31),
    Sketcher.Constraint("Equal", 3, 5),
    Sketcher.Constraint("Equal", 7, 9),
    Sketcher.Constraint("Equal", 11, 13),
    Sketcher.Constraint("Equal", 19, 21),
    Sketcher.Constraint("Equal", 23, 25),
    Sketcher.Constraint("Equal", 27, 29),
    Sketcher.Constraint("Equal", 31, 0),
    Sketcher.Constraint("Equal", 2, 4),
    Sketcher.Constraint("Equal", 6, 8),
    Sketcher.Constraint("Equal", 10, 12),
    Sketcher.Constraint("Equal", 15, 16),
    Sketcher.Constraint("Equal", 18, 20),
    Sketcher.Constraint("Equal", 22, 24),
    Sketcher.Constraint("Equal", 26, 28),
    Sketcher.Constraint("DistanceX", 17, 1, 17, 2, Q("10 mm")),
    Sketcher.Constraint("DistanceX", 16, 2, 15, 2, Q("45.867601 mm")),
    Sketcher.Constraint("DistanceX", 1, 1, 1, 2, Q("4.065573 mm")),
    Sketcher.Constraint("DistanceX", 1, 2, -1, 1, Q("79.334892 mm")),
    Sketcher.Constraint("DistanceX", -1, 1, 8, 2, Q("90.827931 mm")),
    Sketcher.Constraint("DistanceY", 8, 2, -1, 1, Q("47.991229 mm")),
    Sketcher.Constraint("DistanceX", -1, 1, 16, 2, Q("44.911361 mm")),
    Sketcher.Constraint("DistanceY", -1, 1, 18, 2, Q("89.73248 mm")),
    Sketcher.Constraint("DistanceY", 26, 2, -1, 1, Q("84.19309 mm")),
    Sketcher.Constraint("DistanceX", -1, 1, 28, 2, Q("44.962579 mm")),
    Sketcher.Constraint("DistanceY", 4, 2, 0, 2, Q("88.146809 mm")),
    Sketcher.Constraint("DistanceX", 0, 2, 5, 2, Q("4.225951 mm")),
    Sketcher.Constraint("DistanceY", 8, 2, 1, 2, Q("88.014141 mm")),
    Sketcher.Constraint("DistanceY", 12, 2, 1, 2, Q("0.058839 mm")),
    Sketcher.Constraint("DistanceY", 2, 2, 20, 2, Q("35.874141 mm")),
    Sketcher.Constraint("DistanceX", 3, 2, 20, 2, Q("40.22686 mm")),
    Sketcher.Constraint("DistanceX", 4, 2, 24, 2, Q("40.16797 mm")),
    Sketcher.Constraint("DistanceY", 28, 2, -1, 1, Q("88.050716 mm")),
])
pocket2 = doc.addObject("PartDesign::Pocket", "Pocket001")
body.addObject(pocket2)
pocket2.Profile = sketch3
pocket2.Length = 1

doc.recompute()
